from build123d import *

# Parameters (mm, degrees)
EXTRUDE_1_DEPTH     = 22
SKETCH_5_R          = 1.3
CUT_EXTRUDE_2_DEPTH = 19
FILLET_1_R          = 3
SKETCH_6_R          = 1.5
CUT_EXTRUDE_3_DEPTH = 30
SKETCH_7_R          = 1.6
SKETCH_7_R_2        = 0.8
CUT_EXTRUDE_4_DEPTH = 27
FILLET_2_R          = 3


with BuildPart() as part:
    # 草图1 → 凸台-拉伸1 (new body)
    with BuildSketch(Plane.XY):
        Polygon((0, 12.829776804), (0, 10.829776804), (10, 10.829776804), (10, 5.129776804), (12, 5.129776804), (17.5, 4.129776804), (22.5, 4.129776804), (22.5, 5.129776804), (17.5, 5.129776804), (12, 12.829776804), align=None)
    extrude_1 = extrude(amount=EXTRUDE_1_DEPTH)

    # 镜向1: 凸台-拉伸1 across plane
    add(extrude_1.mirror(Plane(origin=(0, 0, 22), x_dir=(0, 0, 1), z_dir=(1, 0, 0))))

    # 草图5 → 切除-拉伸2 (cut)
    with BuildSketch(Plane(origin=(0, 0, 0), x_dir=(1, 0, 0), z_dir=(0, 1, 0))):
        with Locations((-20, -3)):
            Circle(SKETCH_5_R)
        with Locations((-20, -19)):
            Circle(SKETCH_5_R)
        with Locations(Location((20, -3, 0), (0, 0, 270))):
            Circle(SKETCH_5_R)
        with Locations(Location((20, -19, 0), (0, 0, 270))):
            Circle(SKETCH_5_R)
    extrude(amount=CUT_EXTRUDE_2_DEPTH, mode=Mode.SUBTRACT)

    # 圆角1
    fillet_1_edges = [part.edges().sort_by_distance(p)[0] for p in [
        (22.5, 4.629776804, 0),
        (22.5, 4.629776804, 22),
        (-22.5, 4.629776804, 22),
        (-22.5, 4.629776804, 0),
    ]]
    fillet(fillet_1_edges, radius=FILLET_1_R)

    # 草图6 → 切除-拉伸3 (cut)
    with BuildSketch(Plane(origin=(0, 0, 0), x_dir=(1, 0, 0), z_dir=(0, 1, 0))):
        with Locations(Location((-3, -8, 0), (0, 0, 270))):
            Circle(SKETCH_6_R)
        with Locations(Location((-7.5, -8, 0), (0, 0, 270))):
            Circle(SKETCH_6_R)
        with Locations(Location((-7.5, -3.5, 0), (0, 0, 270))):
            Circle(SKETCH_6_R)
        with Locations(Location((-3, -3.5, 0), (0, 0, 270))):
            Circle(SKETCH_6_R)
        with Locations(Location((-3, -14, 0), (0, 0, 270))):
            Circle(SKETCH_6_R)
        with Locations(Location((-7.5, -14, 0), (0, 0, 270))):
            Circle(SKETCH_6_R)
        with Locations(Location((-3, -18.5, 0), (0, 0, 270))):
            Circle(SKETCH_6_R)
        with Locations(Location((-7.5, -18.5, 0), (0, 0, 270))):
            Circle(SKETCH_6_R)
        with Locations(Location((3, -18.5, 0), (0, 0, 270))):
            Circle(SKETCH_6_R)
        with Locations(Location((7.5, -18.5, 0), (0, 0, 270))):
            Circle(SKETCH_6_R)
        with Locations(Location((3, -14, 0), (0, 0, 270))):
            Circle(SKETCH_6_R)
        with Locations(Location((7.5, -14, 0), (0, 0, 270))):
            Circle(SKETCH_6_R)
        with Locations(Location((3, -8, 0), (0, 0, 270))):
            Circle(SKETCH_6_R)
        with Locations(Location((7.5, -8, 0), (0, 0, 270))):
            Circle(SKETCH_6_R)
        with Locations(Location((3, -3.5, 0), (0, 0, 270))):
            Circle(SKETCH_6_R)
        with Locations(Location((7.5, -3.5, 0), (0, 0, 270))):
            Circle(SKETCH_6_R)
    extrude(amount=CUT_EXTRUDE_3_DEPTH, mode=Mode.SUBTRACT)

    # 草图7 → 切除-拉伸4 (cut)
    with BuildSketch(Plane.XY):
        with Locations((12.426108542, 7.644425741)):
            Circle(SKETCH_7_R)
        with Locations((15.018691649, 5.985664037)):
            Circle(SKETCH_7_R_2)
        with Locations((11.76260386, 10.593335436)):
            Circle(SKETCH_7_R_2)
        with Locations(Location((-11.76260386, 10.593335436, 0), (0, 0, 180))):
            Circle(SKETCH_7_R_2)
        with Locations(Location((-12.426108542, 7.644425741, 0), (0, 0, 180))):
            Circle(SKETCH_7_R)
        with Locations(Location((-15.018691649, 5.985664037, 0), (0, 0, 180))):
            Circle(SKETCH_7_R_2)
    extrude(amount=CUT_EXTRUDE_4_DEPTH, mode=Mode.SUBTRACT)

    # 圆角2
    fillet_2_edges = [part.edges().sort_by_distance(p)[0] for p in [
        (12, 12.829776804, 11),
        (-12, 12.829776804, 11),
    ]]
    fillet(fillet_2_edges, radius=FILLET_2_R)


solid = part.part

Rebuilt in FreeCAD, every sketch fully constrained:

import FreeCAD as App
import Part
import Sketcher

V = App.Vector


def edges_at(feature, points):
    """Names of the edges that pass closest to the given points."""
    edges = feature.Shape.Edges
    near = lambda p: min(range(len(edges)), key=lambda i: edges[i].distToShape(Part.Vertex(*p))[0])
    return sorted({f"Edge{near(p) + 1}" for p in points})


def add_polygon(sketch, points):
    """Adds a closed chain of lines whose ends are joined by coincident constraints."""
    first, n = sketch.GeometryCount, len(points)
    for a, b in zip(points, points[1:] + points[:1]):
        sketch.addGeometry(Part.LineSegment(App.Vector(*a, 0), App.Vector(*b, 0)), False)
    for i in range(n):
        sketch.addConstraint(Sketcher.Constraint("Coincident", first + i, 2, first + (i + 1) % n, 1))

doc = App.newDocument("Part")
params = doc.addObject("Spreadsheet::Sheet", "Params")
for row, (alias, value) in enumerate([
    ("sketch1_width", "10 mm"),
    ("sketch1_width2", "2 mm"),
    ("sketch1_width3", "5 mm"),
    ("sketch1_height", "1 mm"),
    ("sketch1_height2", "5.7 mm"),
    ("pad1_length", "22 mm"),
    ("sketch2_diameter", "2.6 mm"),
    ("pocket1_length", "19 mm"),
    ("fillet_radius", "3 mm"),
    ("sketch3_diameter", "3 mm"),
    ("pocket2_length", "30 mm"),
    ("sketch4_diameter", "3.2 mm"),
    ("sketch4_diameter2", "1.6 mm"),
    ("pocket3_length", "27 mm"),
    ("fillet2_radius", "3 mm"),
], start=1):
    params.set(f"A{row}", alias)
    params.set(f"B{row}", "=" + value)
    params.setAlias(f"B{row}", alias)

body = doc.addObject("PartDesign::Body", "Body")

# Sketch on XY plane
sketch1 = body.newObject("Sketcher::SketchObject", "Sketch")
sketch1.AttachmentSupport = (doc.getObject("XY_Plane"), [""])
sketch1.MapMode = "FlatFace"
add_polygon(sketch1, [(0, 12.829777), (0, 10.829777), (10, 10.829777), (10, 5.129777), (12, 5.129777), (17.5, 4.129777), (22.5, 4.129777), (22.5, 5.129777), (17.5, 5.129777), (12, 12.829777)])  # lines 0-9
sketch1.addConstraint(Sketcher.Constraint("Vertical", 0))
sketch1.addConstraint(Sketcher.Constraint("Horizontal", 1))
sketch1.addConstraint(Sketcher.Constraint("Vertical", 2))
sketch1.addConstraint(Sketcher.Constraint("Horizontal", 3))
sketch1.addConstraint(Sketcher.Constraint("Horizontal", 5))
sketch1.addConstraint(Sketcher.Constraint("Vertical", 6))
sketch1.addConstraint(Sketcher.Constraint("Horizontal", 7))
sketch1.addConstraint(Sketcher.Constraint("Horizontal", 9))
sketch1.addConstraint(Sketcher.Constraint("PointOnObject", 0, 2, -2))
sketch1.addConstraint(Sketcher.Constraint("Horizontal", 3, 2, 6, 2))
sketch1.addConstraint(Sketcher.Constraint("Vertical", 4, 2, 7, 2))
sketch1.addConstraint(Sketcher.Constraint("Vertical", 3, 2, 8, 2))
sketch1.addConstraint(Sketcher.Constraint("Equal", 3, 0))
sketch1.addConstraint(Sketcher.Constraint("DistanceX", 1, 1, 1, 2, 10.0))
sketch1.addConstraint(Sketcher.Constraint("DistanceX", 3, 1, 3, 2, 2.0))
sketch1.addConstraint(Sketcher.Constraint("DistanceX", 5, 1, 5, 2, 5.0))
sketch1.addConstraint(Sketcher.Constraint("DistanceY", 6, 1, 6, 2, 1.0))
sketch1.addConstraint(Sketcher.Constraint("DistanceY", 2, 2, 2, 1, 5.7))
sketch1.addConstraint(Sketcher.Constraint("DistanceX", -1, 1, 4, 2, 17.5))
sketch1.addConstraint(Sketcher.Constraint("DistanceY", -1, 1, 0, 2, 10.829777))
sketch1.setExpression("Constraints[23]", "Params.sketch1_width")
sketch1.setExpression("Constraints[24]", "Params.sketch1_width2")
sketch1.setExpression("Constraints[25]", "Params.sketch1_width3")
sketch1.setExpression("Constraints[26]", "Params.sketch1_height")
sketch1.setExpression("Constraints[27]", "Params.sketch1_height2")
pad1 = body.newObject("PartDesign::Pad", "Pad")
pad1.Profile = sketch1
pad1.setExpression("Length", "Params.pad1_length")
doc.recompute()

mirrored = body.newObject("PartDesign::Mirrored", "Mirrored")
mirrored.Originals = [pad1]
mirrored.MirrorPlane = (doc.getObject("YZ_Plane"), [""])
body.Tip = mirrored

# Sketch on XZ plane
sketch2 = body.newObject("Sketcher::SketchObject", "Sketch001")
sketch2.AttachmentSupport = (doc.getObject("XZ_Plane"), [""])
sketch2.MapMode = "FlatFace"
sketch2.addGeometry(Part.Circle(V(-20, 3, 0), V(0, 0, 1), 1.3), False)
sketch2.addGeometry(Part.Circle(V(-20, 19, 0), V(0, 0, 1), 1.3), False)
sketch2.addGeometry(Part.Circle(V(20, 3, 0), V(0, 0, 1), 1.3), False)
sketch2.addGeometry(Part.Circle(V(20, 19, 0), V(0, 0, 1), 1.3), False)
sketch2.addConstraint(Sketcher.Constraint("Equal", 0, 1))
sketch2.addConstraint(Sketcher.Constraint("Equal", 1, 2))
sketch2.addConstraint(Sketcher.Constraint("Equal", 2, 3))
sketch2.addConstraint(Sketcher.Constraint("Symmetric", 0, 3, 2, 3, -2))
sketch2.addConstraint(Sketcher.Constraint("Symmetric", 1, 3, 3, 3, -2))
sketch2.addConstraint(Sketcher.Constraint("Vertical", 0, 3, 1, 3))
sketch2.addConstraint(Sketcher.Constraint("Diameter", 0, 2.6))
sketch2.addConstraint(Sketcher.Constraint("DistanceX", 0, 3, -1, 1, 20.0))
sketch2.addConstraint(Sketcher.Constraint("DistanceY", -1, 1, 0, 3, 3.0))
sketch2.addConstraint(Sketcher.Constraint("DistanceY", -1, 1, 1, 3, 19.0))
sketch2.setExpression("Constraints[6]", "Params.sketch2_diameter")
pocket1 = body.newObject("PartDesign::Pocket", "Pocket")
pocket1.Profile = sketch2
pocket1.setExpression("Length", "Params.pocket1_length")
doc.recompute()

fillet = body.newObject("PartDesign::Fillet", "Fillet")
fillet.Base = (pocket1, edges_at(pocket1, [
    (22.5, 4.63, 0),
    (22.5, 4.63, 22),
    (-22.5, 4.63, 22),
    (-22.5, 4.63, 0),
]))
fillet.setExpression("Radius", "Params.fillet_radius")

# Sketch on XZ plane
sketch3 = body.newObject("Sketcher::SketchObject", "Sketch002")
sketch3.AttachmentSupport = (doc.getObject("XZ_Plane"), [""])
sketch3.MapMode = "FlatFace"
sketch3.addGeometry(Part.Circle(V(-3, 8, 0), V(0, 0, 1), 1.5), False)
sketch3.addGeometry(Part.Circle(V(-7.5, 8, 0), V(0, 0, 1), 1.5), False)
sketch3.addGeometry(Part.Circle(V(-7.5, 3.5, 0), V(0, 0, 1), 1.5), False)
sketch3.addGeometry(Part.Circle(V(-3, 3.5, 0), V(0, 0, 1), 1.5), False)
sketch3.addGeometry(Part.Circle(V(-3, 14, 0), V(0, 0, 1), 1.5), False)
sketch3.addGeometry(Part.Circle(V(-7.5, 14, 0), V(0, 0, 1), 1.5), False)
sketch3.addGeometry(Part.Circle(V(-3, 18.5, 0), V(0, 0, 1), 1.5), False)
sketch3.addGeometry(Part.Circle(V(-7.5, 18.5, 0), V(0, 0, 1), 1.5), False)
sketch3.addGeometry(Part.Circle(V(3, 18.5, 0), V(0, 0, 1), 1.5), False)
sketch3.addGeometry(Part.Circle(V(7.5, 18.5, 0), V(0, 0, 1), 1.5), False)
sketch3.addGeometry(Part.Circle(V(3, 14, 0), V(0, 0, 1), 1.5), False)
sketch3.addGeometry(Part.Circle(V(7.5, 14, 0), V(0, 0, 1), 1.5), False)
sketch3.addGeometry(Part.Circle(V(3, 8, 0), V(0, 0, 1), 1.5), False)
sketch3.addGeometry(Part.Circle(V(7.5, 8, 0), V(0, 0, 1), 1.5), False)
sketch3.addGeometry(Part.Circle(V(3, 3.5, 0), V(0, 0, 1), 1.5), False)
sketch3.addGeometry(Part.Circle(V(7.5, 3.5, 0), V(0, 0, 1), 1.5), False)
sketch3.addConstraint(Sketcher.Constraint("Equal", 0, 1))
sketch3.addConstraint(Sketcher.Constraint("Equal", 1, 2))
sketch3.addConstraint(Sketcher.Constraint("Equal", 2, 3))
sketch3.addConstraint(Sketcher.Constraint("Equal", 3, 4))
sketch3.addConstraint(Sketcher.Constraint("Equal", 4, 5))
sketch3.addConstraint(Sketcher.Constraint("Equal", 5, 6))
sketch3.addConstraint(Sketcher.Constraint("Equal", 6, 7))
sketch3.addConstraint(Sketcher.Constraint("Equal", 7, 8))
sketch3.addConstraint(Sketcher.Constraint("Equal", 8, 9))
sketch3.addConstraint(Sketcher.Constraint("Equal", 9, 10))
sketch3.addConstraint(Sketcher.Constraint("Equal", 10, 11))
sketch3.addConstraint(Sketcher.Constraint("Equal", 11, 12))
sketch3.addConstraint(Sketcher.Constraint("Equal", 12, 13))
sketch3.addConstraint(Sketcher.Constraint("Equal", 13, 14))
sketch3.addConstraint(Sketcher.Constraint("Equal", 14, 15))
sketch3.addConstraint(Sketcher.Constraint("Symmetric", 6, 3, 8, 3, -2))
sketch3.addConstraint(Sketcher.Constraint("Symmetric", 7, 3, 9, 3, -2))
sketch3.addConstraint(Sketcher.Constraint("Symmetric", 4, 3, 10, 3, -2))
sketch3.addConstraint(Sketcher.Constraint("Symmetric", 5, 3, 11, 3, -2))
sketch3.addConstraint(Sketcher.Constraint("Symmetric", 0, 3, 12, 3, -2))
sketch3.addConstraint(Sketcher.Constraint("Symmetric", 1, 3, 13, 3, -2))
sketch3.addConstraint(Sketcher.Constraint("Symmetric", 3, 3, 14, 3, -2))
sketch3.addConstraint(Sketcher.Constraint("Symmetric", 2, 3, 15, 3, -2))
sketch3.addConstraint(Sketcher.Constraint("Horizontal", 0, 3, 1, 3))
sketch3.addConstraint(Sketcher.Constraint("Horizontal", 2, 3, 3, 3))
sketch3.addConstraint(Sketcher.Constraint("Horizontal", 4, 3, 5, 3))
sketch3.addConstraint(Sketcher.Constraint("Horizontal", 6, 3, 7, 3))
sketch3.addConstraint(Sketcher.Constraint("Vertical", 1, 3, 2, 3))
sketch3.addConstraint(Sketcher.Constraint("Vertical", 0, 3, 3, 3))
sketch3.addConstraint(Sketcher.Constraint("Vertical", 3, 3, 4, 3))
sketch3.addConstraint(Sketcher.Constraint("Vertical", 2, 3, 5, 3))
sketch3.addConstraint(Sketcher.Constraint("Vertical", 4, 3, 6, 3))
sketch3.addConstraint(Sketcher.Constraint("Vertical", 5, 3, 7, 3))
sketch3.addConstraint(Sketcher.Constraint("Diameter", 0, 3.0))
sketch3.addConstraint(Sketcher.Constraint("DistanceX", 0, 3, -1, 1, 3.0))
sketch3.addConstraint(Sketcher.Constraint("DistanceY", -1, 1, 0, 3, 8.0))
sketch3.addConstraint(Sketcher.Constraint("DistanceY", -1, 1, 4, 3, 14.0))
sketch3.addConstraint(Sketcher.Constraint("DistanceY", 3, 3, 6, 3, 15.0))
sketch3.addConstraint(Sketcher.Constraint("DistanceX", 7, 3, 9, 3, 15.0))
sketch3.addConstraint(Sketcher.Constraint("DistanceY", -1, 1, 2, 3, 3.5))
sketch3.setExpression("Constraints[33]", "Params.sketch3_diameter")
pocket2 = body.newObject("PartDesign::Pocket", "Pocket001")
pocket2.Profile = sketch3
pocket2.setExpression("Length", "Params.pocket2_length")

# Sketch on XY plane
sketch4 = body.newObject("Sketcher::SketchObject", "Sketch003")
sketch4.AttachmentSupport = (doc.getObject("XY_Plane"), [""])
sketch4.MapMode = "FlatFace"
sketch4.addGeometry(Part.Circle(V(12.426109, 7.644426, 0), V(0, 0, 1), 1.6), False)
sketch4.addGeometry(Part.Circle(V(15.018692, 5.985664, 0), V(0, 0, 1), 0.8), False)
sketch4.addGeometry(Part.Circle(V(11.762604, 10.593335, 0), V(0, 0, 1), 0.8), False)
sketch4.addGeometry(Part.Circle(V(-11.762604, 10.593335, 0), V(0, 0, 1), 0.8), False)
sketch4.addGeometry(Part.Circle(V(-12.426109, 7.644426, 0), V(0, 0, 1), 1.6), False)
sketch4.addGeometry(Part.Circle(V(-15.018692, 5.985664, 0), V(0, 0, 1), 0.8), False)
sketch4.addConstraint(Sketcher.Constraint("Equal", 1, 2))
sketch4.addConstraint(Sketcher.Constraint("Equal", 2, 3))
sketch4.addConstraint(Sketcher.Constraint("Equal", 0, 4))
sketch4.addConstraint(Sketcher.Constraint("Equal", 3, 5))
sketch4.addConstraint(Sketcher.Constraint("Symmetric", 2, 3, 3, 3, -2))
sketch4.addConstraint(Sketcher.Constraint("Symmetric", 0, 3, 4, 3, -2))
sketch4.addConstraint(Sketcher.Constraint("Symmetric", 1, 3, 5, 3, -2))
sketch4.addConstraint(Sketcher.Constraint("Diameter", 0, 3.2))
sketch4.addConstraint(Sketcher.Constraint("Diameter", 1, 1.6))
sketch4.addConstraint(Sketcher.Constraint("DistanceX", 4, 3, 1, 3, 27.4448))
sketch4.addConstraint(Sketcher.Constraint("DistanceX", -1, 1, 0, 3, 12.426109))
sketch4.addConstraint(Sketcher.Constraint("DistanceY", 1, 3, 0, 3, 1.658762))
sketch4.addConstraint(Sketcher.Constraint("DistanceY", 0, 3, 2, 3, 2.94891))
sketch4.addConstraint(Sketcher.Constraint("DistanceY", -1, 1, 0, 3, 7.644426))
sketch4.addConstraint(Sketcher.Constraint("DistanceX", -1, 1, 2, 3, 11.762604))
sketch4.setExpression("Constraints[7]", "Params.sketch4_diameter")
sketch4.setExpression("Constraints[8]", "Params.sketch4_diameter2")
pocket3 = body.newObject("PartDesign::Pocket", "Pocket002")
pocket3.Profile = sketch4
pocket3.setExpression("Length", "Params.pocket3_length")
pocket3.Reversed = True
doc.recompute()

fillet2 = body.newObject("PartDesign::Fillet", "Fillet001")
fillet2.Base = (pocket3, edges_at(pocket3, [(12, 12.83, 11), (-12, 12.83, 11)]))
fillet2.setExpression("Radius", "Params.fillet2_radius")

doc.recompute()
